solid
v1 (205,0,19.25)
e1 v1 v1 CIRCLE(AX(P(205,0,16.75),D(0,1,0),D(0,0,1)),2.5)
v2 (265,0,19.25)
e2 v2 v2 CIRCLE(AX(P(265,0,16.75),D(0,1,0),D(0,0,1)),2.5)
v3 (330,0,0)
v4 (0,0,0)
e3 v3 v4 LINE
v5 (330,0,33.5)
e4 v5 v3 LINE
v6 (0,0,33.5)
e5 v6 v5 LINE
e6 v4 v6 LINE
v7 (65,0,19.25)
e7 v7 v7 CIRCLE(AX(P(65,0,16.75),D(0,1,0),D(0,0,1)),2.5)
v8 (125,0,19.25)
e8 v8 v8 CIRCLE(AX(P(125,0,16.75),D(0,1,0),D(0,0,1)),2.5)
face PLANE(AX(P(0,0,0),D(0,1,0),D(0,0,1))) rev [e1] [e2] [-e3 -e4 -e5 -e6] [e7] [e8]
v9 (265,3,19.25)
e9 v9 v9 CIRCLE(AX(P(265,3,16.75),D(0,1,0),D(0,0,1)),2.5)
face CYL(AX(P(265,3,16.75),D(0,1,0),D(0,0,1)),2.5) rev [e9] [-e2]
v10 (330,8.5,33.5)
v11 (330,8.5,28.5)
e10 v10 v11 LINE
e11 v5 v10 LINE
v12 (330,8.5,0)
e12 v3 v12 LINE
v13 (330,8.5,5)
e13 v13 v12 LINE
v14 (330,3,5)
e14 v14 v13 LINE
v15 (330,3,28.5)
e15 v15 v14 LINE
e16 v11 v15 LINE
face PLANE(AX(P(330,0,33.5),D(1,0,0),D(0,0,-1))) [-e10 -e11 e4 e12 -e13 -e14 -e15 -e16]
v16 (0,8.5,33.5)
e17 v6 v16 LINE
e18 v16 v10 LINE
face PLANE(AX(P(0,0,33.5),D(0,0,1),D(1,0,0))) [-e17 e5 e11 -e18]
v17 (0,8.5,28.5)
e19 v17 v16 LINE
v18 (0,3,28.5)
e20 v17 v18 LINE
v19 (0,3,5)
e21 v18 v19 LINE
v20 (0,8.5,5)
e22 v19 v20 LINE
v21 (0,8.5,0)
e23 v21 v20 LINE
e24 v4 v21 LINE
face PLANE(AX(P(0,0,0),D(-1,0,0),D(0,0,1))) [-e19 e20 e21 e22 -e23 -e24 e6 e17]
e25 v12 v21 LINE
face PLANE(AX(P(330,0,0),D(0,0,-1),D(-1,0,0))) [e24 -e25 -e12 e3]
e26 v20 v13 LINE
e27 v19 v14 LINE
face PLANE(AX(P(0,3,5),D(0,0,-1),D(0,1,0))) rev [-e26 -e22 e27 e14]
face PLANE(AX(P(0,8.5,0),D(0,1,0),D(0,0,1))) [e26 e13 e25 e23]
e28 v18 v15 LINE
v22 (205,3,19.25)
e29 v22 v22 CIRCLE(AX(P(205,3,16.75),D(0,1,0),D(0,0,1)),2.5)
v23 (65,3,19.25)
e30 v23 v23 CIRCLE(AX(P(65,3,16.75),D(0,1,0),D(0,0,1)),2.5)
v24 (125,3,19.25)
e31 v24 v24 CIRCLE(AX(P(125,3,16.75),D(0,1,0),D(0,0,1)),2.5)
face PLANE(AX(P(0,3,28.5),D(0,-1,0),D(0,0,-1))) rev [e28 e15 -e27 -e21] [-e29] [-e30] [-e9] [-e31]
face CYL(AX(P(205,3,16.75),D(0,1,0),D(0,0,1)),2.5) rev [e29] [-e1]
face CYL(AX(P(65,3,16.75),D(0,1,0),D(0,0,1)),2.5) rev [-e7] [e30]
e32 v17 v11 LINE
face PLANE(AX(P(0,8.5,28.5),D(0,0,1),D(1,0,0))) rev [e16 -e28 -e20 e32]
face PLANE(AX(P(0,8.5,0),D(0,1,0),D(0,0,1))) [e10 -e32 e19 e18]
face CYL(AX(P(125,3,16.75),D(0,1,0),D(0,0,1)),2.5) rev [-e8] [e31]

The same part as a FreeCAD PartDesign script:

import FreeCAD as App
import Part
import Sketcher
Q = App.Units.Quantity


def add_polygon(sketch, points):
    """Adds a closed chain of lines whose ends are joined by coincident constraints."""
    first, n = sketch.GeometryCount, len(points)
    for a, b in zip(points, points[1:] + points[:1]):
        sketch.addGeometry(Part.LineSegment(App.Vector(*a, 0), App.Vector(*b, 0)), False)
    for i in range(n):
        sketch.addConstraint(Sketcher.Constraint("Coincident", first + i, 2, first + (i + 1) % n, 1))

doc = App.newDocument("Part")
body = doc.addObject("PartDesign::Body", "Body")

# Sketch on XZ plane
sketch1 = doc.addObject("Sketcher::SketchObject", "Sketch")
body.addObject(sketch1)
sketch1.AttachmentSupport = (doc.XZ_Plane, [""])
sketch1.MapMode = "FlatFace"
sketch1.AttachmentOffset = App.Placement(App.Vector(0, 0, -8.5), App.Rotation())
add_polygon(sketch1, [(0, 0), (0, 33.5), (330, 33.5), (330, 0)])  # lines 0-3
sketch1.addConstraint(Sketcher.Constraint("Vertical", 0))
sketch1.addConstraint(Sketcher.Constraint("Horizontal", 1))
sketch1.addConstraint(Sketcher.Constraint("Vertical", 2))
sketch1.addConstraint(Sketcher.Constraint("Horizontal", 3))
sketch1.addConstraint(Sketcher.Constraint("Coincident", 3, 2, -1, 1))
sketch1.addConstraint(Sketcher.Constraint("DistanceX", 1, 1, 1, 2, Q("330 mm")))
sketch1.addConstraint(Sketcher.Constraint("DistanceY", 0, 1, 0, 2, Q("33.5 mm")))
pad1 = doc.addObject("PartDesign::Pad", "Pad")
body.addObject(pad1)
pad1.Profile = sketch1
pad1.Length = 8.5

# Sketch on YZ plane
sketch2 = doc.addObject("Sketcher::SketchObject", "Sketch001")
body.addObject(sketch2)
sketch2.AttachmentSupport = (doc.YZ_Plane, [""])
sketch2.MapMode = "FlatFace"
sketch2.AttachmentOffset = App.Placement(App.Vector(0, 0, 330), App.Rotation())
add_polygon(sketch2, [(8.5, 28.5), (3, 28.5), (3, 5), (8.5, 5)])  # lines 0-3
sketch2.addConstraint(Sketcher.Constraint("Horizontal", 0))
sketch2.addConstraint(Sketcher.Constraint("Vertical", 1))
sketch2.addConstraint(Sketcher.Constraint("Horizontal", 2))
sketch2.addConstraint(Sketcher.Constraint("Vertical", 3))
sketch2.addConstraint(Sketcher.Constraint("DistanceX", 0, 2, 0, 1, Q("5.5 mm")))
sketch2.addConstraint(Sketcher.Constraint("DistanceY", 1, 2, 1, 1, Q("23.5 mm")))
sketch2.addConstraint(Sketcher.Constraint("DistanceX", -1, 1, 0, 2, Q("3 mm")))
sketch2.addConstraint(Sketcher.Constraint("DistanceY", -1, 1, 1, 2, Q("5 mm")))
pocket1 = doc.addObject("PartDesign::Pocket", "Pocket")
body.addObject(pocket1)
pocket1.Profile = sketch2
pocket1.Type = "ThroughAll"

# Sketch on XZ plane
sketch3 = doc.addObject("Sketcher::SketchObject", "Sketch002")
body.addObject(sketch3)
sketch3.AttachmentSupport = (doc.XZ_Plane, [""])
sketch3.MapMode = "FlatFace"
sketch3.AttachmentOffset = App.Placement(App.Vector(0, 0, -3), App.Rotation())
sketch3.addGeometry(Part.Circle(App.Vector(65, 16.75, 0), App.Vector(0, 0, 1), 2.5), False)
sketch3.addGeometry(Part.Circle(App.Vector(125, 16.75, 0), App.Vector(0, 0, 1), 2.5), False)
sketch3.addGeometry(Part.Circle(App.Vector(265, 16.75, 0), App.Vector(0, 0, 1), 2.5), False)
sketch3.addGeometry(Part.Circle(App.Vector(205, 16.75, 0), App.Vector(0, 0, 1), 2.5), False)
sketch3.addConstraint(Sketcher.Constraint("Equal", 0, 1))
sketch3.addConstraint(Sketcher.Constraint("Equal", 1, 2))
sketch3.addConstraint(Sketcher.Constraint("Equal", 2, 3))
sketch3.addConstraint(Sketcher.Constraint("Horizontal", 0, 3, 1, 3))
sketch3.addConstraint(Sketcher.Constraint("Horizontal", 1, 3, 2, 3))
sketch3.addConstraint(Sketcher.Constraint("Horizontal", 2, 3, 3, 3))
sketch3.addConstraint(Sketcher.Constraint("Diameter", 0, Q("5 mm")))
sketch3.addConstraint(Sketcher.Constraint("DistanceX", -1, 1, 0, 3, Q("65 mm")))
sketch3.addConstraint(Sketcher.Constraint("DistanceX", -1, 1, 1, 3, Q("125 mm")))
sketch3.addConstraint(Sketcher.Constraint("DistanceX", -1, 1, 2, 3, Q("265 mm")))
sketch3.addConstraint(Sketcher.Constraint("DistanceX", -1, 1, 3, 3, Q("205 mm")))
sketch3.addConstraint(Sketcher.Constraint("DistanceY", -1, 1, 0, 3, Q("16.75 mm")))
doc.recompute()
hole = doc.addObject("PartDesign::Hole", "Hole")
body.addObject(hole)
hole.Profile = sketch3
hole.ThreadType = "None"
hole.Diameter = 5
hole.DepthType = "ThroughAll"
hole.Reversed = True

doc.recompute()
